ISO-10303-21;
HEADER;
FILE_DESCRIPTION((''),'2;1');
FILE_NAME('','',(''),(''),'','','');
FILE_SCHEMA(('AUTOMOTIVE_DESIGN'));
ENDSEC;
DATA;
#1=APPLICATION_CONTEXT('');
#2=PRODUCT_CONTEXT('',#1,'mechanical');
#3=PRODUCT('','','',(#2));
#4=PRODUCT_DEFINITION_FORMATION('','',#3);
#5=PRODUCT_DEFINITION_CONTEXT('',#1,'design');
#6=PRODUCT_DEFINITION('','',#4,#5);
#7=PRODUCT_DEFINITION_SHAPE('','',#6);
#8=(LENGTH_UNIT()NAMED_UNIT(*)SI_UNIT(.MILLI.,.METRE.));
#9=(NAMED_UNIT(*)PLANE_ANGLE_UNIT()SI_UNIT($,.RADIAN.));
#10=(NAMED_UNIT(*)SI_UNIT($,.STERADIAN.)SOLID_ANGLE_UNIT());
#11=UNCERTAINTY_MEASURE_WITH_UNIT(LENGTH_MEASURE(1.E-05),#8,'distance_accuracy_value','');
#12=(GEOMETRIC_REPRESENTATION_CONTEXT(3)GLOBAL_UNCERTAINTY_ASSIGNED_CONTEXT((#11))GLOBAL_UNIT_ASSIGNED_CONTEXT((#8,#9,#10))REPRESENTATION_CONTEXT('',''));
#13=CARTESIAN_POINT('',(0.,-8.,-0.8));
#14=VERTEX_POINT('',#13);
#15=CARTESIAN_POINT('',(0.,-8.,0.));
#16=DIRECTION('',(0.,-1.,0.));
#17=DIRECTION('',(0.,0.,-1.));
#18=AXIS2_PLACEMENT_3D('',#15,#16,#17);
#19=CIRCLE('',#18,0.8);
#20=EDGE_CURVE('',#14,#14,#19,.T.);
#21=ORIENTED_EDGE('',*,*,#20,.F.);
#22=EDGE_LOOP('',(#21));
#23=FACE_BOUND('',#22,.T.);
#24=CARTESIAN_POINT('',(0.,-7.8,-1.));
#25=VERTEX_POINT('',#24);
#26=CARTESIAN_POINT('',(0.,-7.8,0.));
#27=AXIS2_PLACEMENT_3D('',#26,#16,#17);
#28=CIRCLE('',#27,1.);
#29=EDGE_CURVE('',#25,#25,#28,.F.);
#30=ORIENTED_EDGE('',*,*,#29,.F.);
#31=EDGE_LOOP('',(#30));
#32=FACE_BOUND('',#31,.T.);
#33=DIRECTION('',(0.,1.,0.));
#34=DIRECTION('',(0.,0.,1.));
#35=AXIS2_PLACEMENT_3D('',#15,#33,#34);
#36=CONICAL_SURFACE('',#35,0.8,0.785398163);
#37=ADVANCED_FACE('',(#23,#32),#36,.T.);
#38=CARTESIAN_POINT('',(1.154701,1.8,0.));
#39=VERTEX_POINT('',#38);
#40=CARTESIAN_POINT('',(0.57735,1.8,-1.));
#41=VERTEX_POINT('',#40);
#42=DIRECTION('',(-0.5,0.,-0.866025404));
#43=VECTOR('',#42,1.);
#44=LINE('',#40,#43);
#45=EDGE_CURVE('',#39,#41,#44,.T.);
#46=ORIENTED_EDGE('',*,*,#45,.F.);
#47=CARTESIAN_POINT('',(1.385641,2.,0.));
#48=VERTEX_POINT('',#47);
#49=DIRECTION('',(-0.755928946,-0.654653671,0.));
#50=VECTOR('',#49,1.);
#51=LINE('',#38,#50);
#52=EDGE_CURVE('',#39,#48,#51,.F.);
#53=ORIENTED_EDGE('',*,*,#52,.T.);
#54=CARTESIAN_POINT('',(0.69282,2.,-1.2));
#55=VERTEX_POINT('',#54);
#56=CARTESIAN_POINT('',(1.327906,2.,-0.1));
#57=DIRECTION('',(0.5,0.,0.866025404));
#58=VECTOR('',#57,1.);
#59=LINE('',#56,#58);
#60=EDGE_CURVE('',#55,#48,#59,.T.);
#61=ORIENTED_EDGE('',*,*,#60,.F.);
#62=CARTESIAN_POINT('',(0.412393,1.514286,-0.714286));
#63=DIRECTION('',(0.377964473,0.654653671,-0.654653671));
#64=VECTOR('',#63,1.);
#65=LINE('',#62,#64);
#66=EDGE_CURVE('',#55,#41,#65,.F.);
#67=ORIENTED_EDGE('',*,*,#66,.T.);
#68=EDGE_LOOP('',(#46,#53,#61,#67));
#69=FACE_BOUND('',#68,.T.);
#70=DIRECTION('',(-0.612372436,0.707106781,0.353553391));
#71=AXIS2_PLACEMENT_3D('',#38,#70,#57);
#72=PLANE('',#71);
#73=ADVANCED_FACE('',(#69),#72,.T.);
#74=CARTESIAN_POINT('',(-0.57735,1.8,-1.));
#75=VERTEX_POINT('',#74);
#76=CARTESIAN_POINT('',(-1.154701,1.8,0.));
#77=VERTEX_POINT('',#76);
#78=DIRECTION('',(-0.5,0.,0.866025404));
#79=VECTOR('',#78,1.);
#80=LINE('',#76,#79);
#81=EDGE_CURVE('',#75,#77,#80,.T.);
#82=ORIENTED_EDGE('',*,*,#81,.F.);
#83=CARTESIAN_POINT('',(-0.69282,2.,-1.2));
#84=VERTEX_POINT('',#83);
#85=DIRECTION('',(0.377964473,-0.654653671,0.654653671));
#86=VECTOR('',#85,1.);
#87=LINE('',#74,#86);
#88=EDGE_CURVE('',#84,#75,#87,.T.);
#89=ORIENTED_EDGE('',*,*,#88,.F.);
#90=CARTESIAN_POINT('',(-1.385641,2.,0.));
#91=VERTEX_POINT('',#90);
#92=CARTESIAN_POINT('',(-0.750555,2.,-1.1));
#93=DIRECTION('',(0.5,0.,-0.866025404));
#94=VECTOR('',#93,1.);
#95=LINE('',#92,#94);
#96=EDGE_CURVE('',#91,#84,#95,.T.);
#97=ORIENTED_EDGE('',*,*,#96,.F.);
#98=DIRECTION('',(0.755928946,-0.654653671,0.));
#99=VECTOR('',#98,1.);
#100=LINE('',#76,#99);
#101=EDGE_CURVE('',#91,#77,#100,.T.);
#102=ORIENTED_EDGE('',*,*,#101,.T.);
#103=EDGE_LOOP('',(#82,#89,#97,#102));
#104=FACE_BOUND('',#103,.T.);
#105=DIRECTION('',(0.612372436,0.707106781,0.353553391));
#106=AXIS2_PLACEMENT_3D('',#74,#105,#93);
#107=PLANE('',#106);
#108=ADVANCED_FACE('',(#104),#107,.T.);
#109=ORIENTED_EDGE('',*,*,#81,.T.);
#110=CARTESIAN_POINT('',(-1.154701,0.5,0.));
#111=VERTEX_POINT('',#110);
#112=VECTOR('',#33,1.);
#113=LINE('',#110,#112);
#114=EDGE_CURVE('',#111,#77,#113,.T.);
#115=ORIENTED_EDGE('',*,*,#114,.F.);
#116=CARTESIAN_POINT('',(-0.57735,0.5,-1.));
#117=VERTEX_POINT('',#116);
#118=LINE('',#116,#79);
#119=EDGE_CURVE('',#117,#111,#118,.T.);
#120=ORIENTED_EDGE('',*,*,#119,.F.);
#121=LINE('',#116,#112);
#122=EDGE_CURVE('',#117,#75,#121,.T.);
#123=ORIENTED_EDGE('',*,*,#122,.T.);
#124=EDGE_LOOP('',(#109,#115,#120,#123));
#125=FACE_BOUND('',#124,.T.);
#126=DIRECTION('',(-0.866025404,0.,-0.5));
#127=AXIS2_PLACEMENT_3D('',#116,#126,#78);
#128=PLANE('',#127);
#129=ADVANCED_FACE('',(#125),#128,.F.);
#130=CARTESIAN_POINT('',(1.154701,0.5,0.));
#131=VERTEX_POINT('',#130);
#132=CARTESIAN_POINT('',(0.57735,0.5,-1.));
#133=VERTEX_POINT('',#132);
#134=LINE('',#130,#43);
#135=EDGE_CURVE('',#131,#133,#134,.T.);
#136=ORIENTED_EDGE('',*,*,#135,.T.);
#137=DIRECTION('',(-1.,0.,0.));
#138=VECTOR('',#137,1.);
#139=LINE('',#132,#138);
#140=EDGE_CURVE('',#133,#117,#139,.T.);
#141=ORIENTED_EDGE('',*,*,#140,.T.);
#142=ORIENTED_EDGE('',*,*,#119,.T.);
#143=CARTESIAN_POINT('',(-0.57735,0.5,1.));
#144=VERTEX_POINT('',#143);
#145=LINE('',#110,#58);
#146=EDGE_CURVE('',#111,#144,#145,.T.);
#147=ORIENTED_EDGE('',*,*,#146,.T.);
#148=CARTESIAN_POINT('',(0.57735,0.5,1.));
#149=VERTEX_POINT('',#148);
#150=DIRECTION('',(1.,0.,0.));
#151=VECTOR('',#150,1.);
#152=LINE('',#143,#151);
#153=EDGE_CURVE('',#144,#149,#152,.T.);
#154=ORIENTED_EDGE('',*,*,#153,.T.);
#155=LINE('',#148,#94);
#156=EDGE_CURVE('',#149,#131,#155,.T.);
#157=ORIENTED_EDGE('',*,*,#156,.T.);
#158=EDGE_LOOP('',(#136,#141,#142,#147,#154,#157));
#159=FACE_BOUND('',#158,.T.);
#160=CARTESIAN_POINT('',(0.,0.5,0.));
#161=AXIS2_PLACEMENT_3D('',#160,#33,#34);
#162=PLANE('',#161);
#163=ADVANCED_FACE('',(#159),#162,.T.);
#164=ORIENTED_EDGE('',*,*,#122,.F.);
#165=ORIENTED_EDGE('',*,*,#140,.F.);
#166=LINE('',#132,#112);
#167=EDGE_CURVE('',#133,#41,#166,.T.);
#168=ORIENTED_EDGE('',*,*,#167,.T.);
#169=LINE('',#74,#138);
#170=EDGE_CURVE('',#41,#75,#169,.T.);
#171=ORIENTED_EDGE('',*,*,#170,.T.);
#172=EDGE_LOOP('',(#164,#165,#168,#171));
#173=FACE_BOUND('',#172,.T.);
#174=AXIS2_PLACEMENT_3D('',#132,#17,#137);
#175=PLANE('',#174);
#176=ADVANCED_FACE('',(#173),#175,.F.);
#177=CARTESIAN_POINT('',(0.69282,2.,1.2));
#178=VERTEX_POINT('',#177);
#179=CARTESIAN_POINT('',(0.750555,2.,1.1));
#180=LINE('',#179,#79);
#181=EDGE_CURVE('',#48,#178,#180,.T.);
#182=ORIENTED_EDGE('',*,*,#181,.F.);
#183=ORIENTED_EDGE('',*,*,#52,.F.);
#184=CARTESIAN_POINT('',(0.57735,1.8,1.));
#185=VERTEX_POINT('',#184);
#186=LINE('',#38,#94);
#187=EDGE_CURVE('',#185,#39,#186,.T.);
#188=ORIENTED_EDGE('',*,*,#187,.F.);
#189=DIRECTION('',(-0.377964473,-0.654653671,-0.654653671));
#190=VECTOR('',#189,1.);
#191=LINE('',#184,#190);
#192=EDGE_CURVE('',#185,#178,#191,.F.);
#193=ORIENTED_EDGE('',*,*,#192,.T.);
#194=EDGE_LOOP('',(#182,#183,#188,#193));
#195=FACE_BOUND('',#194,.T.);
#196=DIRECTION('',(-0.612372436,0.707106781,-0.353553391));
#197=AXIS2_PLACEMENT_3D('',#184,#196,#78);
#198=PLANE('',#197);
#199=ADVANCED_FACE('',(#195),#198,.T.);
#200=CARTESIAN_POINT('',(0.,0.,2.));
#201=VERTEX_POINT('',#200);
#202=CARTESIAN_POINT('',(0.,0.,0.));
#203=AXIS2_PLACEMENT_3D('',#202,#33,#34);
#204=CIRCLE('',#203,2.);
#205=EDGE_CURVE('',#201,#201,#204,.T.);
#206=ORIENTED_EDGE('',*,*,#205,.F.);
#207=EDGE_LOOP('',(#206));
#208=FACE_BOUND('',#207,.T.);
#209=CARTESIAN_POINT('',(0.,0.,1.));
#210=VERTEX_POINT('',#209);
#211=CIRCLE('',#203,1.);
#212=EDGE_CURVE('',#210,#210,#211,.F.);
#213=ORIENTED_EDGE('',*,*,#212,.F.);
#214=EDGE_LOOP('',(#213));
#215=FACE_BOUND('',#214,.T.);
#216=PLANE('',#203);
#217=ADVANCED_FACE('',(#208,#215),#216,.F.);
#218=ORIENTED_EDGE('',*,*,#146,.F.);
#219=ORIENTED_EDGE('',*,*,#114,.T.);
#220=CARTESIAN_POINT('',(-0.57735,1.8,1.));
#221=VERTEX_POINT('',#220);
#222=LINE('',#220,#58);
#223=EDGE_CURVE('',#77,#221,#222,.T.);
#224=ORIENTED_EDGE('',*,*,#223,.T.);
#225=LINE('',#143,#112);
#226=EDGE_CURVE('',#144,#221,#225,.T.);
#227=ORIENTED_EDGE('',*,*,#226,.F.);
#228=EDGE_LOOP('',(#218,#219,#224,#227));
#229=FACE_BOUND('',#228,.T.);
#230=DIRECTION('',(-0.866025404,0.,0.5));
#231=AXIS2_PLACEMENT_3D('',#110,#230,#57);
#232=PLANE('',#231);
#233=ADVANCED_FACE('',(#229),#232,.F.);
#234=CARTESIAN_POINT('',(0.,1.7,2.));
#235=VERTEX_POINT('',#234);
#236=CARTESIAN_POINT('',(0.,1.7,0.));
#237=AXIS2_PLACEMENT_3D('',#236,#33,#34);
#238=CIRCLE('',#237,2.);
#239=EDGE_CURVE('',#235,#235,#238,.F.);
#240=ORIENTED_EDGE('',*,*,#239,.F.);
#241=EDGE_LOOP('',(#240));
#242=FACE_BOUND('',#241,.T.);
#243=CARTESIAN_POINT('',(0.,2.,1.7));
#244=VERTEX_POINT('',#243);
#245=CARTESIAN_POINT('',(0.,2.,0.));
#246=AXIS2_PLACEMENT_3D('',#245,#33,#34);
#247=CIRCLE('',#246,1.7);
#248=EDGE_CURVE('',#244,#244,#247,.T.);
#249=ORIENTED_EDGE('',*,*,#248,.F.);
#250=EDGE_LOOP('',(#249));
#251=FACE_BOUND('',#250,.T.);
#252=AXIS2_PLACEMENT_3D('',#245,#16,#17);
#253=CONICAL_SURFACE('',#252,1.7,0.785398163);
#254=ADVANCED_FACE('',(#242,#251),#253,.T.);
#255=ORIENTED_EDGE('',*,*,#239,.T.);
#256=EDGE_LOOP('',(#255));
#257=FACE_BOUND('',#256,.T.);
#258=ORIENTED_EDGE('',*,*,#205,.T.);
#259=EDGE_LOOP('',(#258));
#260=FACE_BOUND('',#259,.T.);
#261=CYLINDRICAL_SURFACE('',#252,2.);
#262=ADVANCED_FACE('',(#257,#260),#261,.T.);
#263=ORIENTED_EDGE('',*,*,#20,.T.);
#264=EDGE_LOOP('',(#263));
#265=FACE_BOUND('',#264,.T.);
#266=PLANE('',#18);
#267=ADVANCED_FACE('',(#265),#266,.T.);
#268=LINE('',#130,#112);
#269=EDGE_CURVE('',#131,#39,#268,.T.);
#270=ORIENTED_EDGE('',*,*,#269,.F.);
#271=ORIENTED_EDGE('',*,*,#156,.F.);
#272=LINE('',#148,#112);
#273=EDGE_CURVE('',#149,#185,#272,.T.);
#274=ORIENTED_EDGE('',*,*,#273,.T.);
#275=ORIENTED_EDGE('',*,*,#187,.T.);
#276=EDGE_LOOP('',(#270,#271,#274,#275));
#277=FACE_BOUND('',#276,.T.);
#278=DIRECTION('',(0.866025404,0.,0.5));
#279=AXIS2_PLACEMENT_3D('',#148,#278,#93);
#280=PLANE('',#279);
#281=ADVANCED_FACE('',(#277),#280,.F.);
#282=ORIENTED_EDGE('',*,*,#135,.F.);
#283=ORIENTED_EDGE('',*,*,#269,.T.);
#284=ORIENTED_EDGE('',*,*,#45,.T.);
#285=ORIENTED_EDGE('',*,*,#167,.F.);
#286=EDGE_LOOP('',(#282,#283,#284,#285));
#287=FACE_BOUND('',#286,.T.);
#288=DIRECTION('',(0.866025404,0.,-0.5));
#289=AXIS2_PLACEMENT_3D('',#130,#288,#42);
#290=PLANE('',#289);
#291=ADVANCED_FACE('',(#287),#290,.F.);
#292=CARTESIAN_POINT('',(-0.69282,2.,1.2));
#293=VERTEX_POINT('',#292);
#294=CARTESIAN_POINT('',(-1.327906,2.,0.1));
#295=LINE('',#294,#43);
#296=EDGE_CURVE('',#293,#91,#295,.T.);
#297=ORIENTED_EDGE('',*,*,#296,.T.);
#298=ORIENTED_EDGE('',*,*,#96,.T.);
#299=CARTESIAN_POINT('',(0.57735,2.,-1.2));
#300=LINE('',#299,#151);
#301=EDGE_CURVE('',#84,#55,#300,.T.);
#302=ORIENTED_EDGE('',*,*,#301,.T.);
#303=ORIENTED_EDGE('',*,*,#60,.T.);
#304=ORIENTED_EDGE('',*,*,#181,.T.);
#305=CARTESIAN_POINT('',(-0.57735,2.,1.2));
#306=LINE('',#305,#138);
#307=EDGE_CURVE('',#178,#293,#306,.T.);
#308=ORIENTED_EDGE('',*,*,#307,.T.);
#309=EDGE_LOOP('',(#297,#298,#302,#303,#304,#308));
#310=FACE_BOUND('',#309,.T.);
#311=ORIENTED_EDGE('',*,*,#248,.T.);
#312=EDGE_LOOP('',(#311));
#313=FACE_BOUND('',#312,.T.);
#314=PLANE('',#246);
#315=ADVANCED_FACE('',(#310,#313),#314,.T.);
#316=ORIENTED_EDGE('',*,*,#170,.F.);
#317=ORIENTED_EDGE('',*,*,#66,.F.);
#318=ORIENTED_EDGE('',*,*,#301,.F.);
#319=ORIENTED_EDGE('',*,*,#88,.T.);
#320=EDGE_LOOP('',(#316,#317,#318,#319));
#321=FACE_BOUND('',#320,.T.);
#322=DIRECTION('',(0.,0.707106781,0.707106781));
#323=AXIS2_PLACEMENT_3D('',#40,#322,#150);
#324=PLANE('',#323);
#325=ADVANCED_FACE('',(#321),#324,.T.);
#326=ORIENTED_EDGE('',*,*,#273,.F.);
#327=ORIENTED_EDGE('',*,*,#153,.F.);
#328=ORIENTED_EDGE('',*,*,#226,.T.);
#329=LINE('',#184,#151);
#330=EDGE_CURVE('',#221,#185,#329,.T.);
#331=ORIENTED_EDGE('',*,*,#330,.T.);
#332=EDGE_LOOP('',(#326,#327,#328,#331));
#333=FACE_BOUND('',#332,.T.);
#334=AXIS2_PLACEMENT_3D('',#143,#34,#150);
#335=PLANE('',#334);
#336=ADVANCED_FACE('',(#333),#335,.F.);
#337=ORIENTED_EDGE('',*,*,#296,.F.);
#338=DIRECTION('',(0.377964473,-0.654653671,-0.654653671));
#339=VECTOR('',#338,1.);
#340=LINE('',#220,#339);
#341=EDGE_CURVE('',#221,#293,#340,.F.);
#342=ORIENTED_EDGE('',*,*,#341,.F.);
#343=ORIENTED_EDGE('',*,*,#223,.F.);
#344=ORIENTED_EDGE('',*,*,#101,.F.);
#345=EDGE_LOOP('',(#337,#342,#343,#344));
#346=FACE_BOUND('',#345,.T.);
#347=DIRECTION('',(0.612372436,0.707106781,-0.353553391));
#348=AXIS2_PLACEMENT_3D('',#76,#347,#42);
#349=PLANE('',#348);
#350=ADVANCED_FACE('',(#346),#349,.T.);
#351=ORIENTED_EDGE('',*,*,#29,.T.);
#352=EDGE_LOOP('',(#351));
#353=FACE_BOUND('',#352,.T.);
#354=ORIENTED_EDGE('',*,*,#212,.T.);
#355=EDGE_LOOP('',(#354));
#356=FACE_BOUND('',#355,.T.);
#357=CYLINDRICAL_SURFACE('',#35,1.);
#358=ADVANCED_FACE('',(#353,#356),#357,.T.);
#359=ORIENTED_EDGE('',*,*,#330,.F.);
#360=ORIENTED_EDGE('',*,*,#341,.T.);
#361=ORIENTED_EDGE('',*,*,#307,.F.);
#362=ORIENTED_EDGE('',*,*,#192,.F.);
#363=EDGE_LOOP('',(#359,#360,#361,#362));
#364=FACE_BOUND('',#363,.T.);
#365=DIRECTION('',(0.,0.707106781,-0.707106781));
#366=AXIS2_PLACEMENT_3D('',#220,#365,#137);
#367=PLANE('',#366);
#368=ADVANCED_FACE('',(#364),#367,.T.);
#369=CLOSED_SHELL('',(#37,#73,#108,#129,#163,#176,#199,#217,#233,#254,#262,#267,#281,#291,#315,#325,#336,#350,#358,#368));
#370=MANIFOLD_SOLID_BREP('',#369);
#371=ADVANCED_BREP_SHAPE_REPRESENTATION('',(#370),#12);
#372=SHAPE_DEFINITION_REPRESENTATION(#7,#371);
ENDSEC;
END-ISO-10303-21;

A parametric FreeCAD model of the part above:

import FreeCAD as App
import Part
import Sketcher
Q = App.Units.Quantity


def edges_at(feature, points):
    """Names of the edges that pass closest to the given points."""
    edges = feature.Shape.Edges
    near = lambda p: min(range(len(edges)), key=lambda i: edges[i].distToShape(Part.Vertex(*p))[0])
    return sorted({f"Edge{near(p) + 1}" for p in points})

doc = App.newDocument("Part")
params = doc.addObject("Spreadsheet::Sheet", "Params")
for row, (alias, value) in enumerate([
    ("sketch1_diameter", "4 mm"),
    ("pad1_length", "2 mm"),
    ("chamfer_size", "0.3 mm"),
    ("pocket1_length", "1.5 mm"),
    ("chamfer2_size", "0.2 mm"),
    ("sketch3_diameter", "2 mm"),
    ("pad2_length", "8 mm"),
    ("chamfer3_size", "0.2 mm"),
], start=1):
    params.set(f"A{row}", alias)
    params.set(f"B{row}", "=" + value)
    params.setAlias(f"B{row}", alias)

body = doc.addObject("PartDesign::Body", "Body")

# Sketch on XZ plane
sketch1 = doc.addObject("Sketcher::SketchObject", "Sketch")
body.addObject(sketch1)
sketch1.AttachmentSupport = (doc.XZ_Plane, [""])
sketch1.MapMode = "FlatFace"
sketch1.addGeometry(Part.Circle(App.Vector(0, 0, 0), App.Vector(0, 0, 1), 2), False)
sketch1.addConstraint(Sketcher.Constraint("Coincident", 0, 3, -1, 1))
sketch1.addConstraint(Sketcher.Constraint("Diameter", 0, 4.0))
sketch1.setExpression("Constraints[1]", "Params.sketch1_diameter")
pad1 = doc.addObject("PartDesign::Pad", "Pad")
body.addObject(pad1)
pad1.Profile = sketch1
pad1.setExpression("Length", "Params.pad1_length")
pad1.Reversed = True
doc.recompute()

chamfer = doc.addObject("PartDesign::Chamfer", "Chamfer")
body.addObject(chamfer)
chamfer.Base = (pad1, edges_at(pad1, [(0, 2, -2)]))
chamfer.setExpression("Size", "Params.chamfer_size")

# Sketch on XZ plane
sketch2 = doc.addObject("Sketcher::SketchObject", "Sketch001")
body.addObject(sketch2)
sketch2.AttachmentSupport = (doc.XZ_Plane, [""])
sketch2.MapMode = "FlatFace"
sketch2.AttachmentOffset = App.Placement(App.Vector(0, 0, -2), App.Rotation())
sketch2.addGeometry(Part.LineSegment(App.Vector(1.2, 0, 0), App.Vector(0.6, -1, 0)), False)
sketch2.addGeometry(Part.LineSegment(App.Vector(0.6, -1, 0), App.Vector(-0.6, -1, 0)), False)
sketch2.addGeometry(Part.LineSegment(App.Vector(-0.6, -1, 0), App.Vector(-1.2, 0, 0)), False)
sketch2.addGeometry(Part.LineSegment(App.Vector(-1.2, 0, 0), App.Vector(-0.6, 1, 0)), False)
sketch2.addGeometry(Part.LineSegment(App.Vector(-0.6, 1, 0), App.Vector(0.6, 1, 0)), False)
sketch2.addGeometry(Part.LineSegment(App.Vector(0.6, 1, 0), App.Vector(1.2, 0, 0)), False)
sketch2.addConstraint(Sketcher.Constraint("Coincident", 0, 2, 1, 1))
sketch2.addConstraint(Sketcher.Constraint("Coincident", 1, 2, 2, 1))
sketch2.addConstraint(Sketcher.Constraint("Coincident", 2, 2, 3, 1))
sketch2.addConstraint(Sketcher.Constraint("Coincident", 3, 2, 4, 1))
sketch2.addConstraint(Sketcher.Constraint("Coincident", 4, 2, 5, 1))
sketch2.addConstraint(Sketcher.Constraint("Coincident", 5, 2, 0, 1))
sketch2.addConstraint(Sketcher.Constraint("Horizontal", 1))
sketch2.addConstraint(Sketcher.Constraint("Horizontal", 4))
sketch2.addConstraint(Sketcher.Constraint("Symmetric", 0, 2, 3, 2, -1, 1))
sketch2.addConstraint(Sketcher.Constraint("Symmetric", 2, 2, 5, 2, -1, 1))
sketch2.addConstraint(Sketcher.Constraint("PointOnObject", 2, 2, -1))
sketch2.addConstraint(Sketcher.Constraint("Parallel", 2, 5))
sketch2.addConstraint(Sketcher.Constraint("Vertical", 1, 2, 3, 2))
sketch2.addConstraint(Sketcher.Constraint("Angle", 0, Q("-120 deg")))
sketch2.addConstraint(Sketcher.Constraint("DistanceY", 0, 2, -1, 1, 1.0))
sketch2.addConstraint(Sketcher.Constraint("DistanceX", 1, 2, 1, 1, 1.154701))
pocket1 = doc.addObject("PartDesign::Pocket", "Pocket")
body.addObject(pocket1)
pocket1.Profile = sketch2
pocket1.setExpression("Length", "Params.pocket1_length")
pocket1.Reversed = True
doc.recompute()

chamfer2 = doc.addObject("PartDesign::Chamfer", "Chamfer001")
body.addObject(chamfer2)
chamfer2.Base = (pocket1, edges_at(pocket1, [
    (0.866, 2, 0.5),
    (0.866, 2, -0.5),
    (0, 2, -1),
    (-0.866, 2, -0.5),
    (-0.866, 2, 0.5),
    (0, 2, 1),
]))
chamfer2.setExpression("Size", "Params.chamfer2_size")

# Sketch on XZ plane
sketch3 = doc.addObject("Sketcher::SketchObject", "Sketch002")
body.addObject(sketch3)
sketch3.AttachmentSupport = (doc.XZ_Plane, [""])
sketch3.MapMode = "FlatFace"
sketch3.addGeometry(Part.Circle(App.Vector(0, 0, 0), App.Vector(0, 0, 1), 1), False)
sketch3.addConstraint(Sketcher.Constraint("Coincident", 0, 3, -1, 1))
sketch3.addConstraint(Sketcher.Constraint("Diameter", 0, 2.0))
sketch3.setExpression("Constraints[1]", "Params.sketch3_diameter")
pad2 = doc.addObject("PartDesign::Pad", "Pad001")
body.addObject(pad2)
pad2.Profile = sketch3
pad2.setExpression("Length", "Params.pad2_length")
doc.recompute()

chamfer3 = doc.addObject("PartDesign::Chamfer", "Chamfer002")
body.addObject(chamfer3)
chamfer3.Base = (pad2, edges_at(pad2, [(0, -8, -1)]))
chamfer3.setExpression("Size", "Params.chamfer3_size")

doc.recompute()
